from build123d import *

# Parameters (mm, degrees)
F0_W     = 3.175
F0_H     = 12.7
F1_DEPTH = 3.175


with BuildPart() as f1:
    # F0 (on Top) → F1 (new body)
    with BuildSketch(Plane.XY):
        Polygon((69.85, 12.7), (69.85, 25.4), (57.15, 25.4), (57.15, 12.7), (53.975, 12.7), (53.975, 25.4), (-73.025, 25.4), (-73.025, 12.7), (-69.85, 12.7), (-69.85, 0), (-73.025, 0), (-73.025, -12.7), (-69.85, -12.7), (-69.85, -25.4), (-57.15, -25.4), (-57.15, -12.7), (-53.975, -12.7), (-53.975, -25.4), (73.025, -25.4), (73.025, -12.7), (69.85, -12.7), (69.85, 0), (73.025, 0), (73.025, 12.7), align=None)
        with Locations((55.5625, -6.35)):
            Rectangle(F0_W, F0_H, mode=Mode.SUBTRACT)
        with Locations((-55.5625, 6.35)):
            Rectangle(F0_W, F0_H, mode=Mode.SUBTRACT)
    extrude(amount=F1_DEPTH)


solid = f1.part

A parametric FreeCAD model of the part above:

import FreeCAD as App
import Part
import Sketcher

V = App.Vector
Q = App.Units.Quantity

doc = App.newDocument("Part")
body = doc.addObject("PartDesign::Body", "Body")

# Sketch on XY plane
sketch1 = doc.addObject("Sketcher::SketchObject", "Sketch")
body.addObject(sketch1)
sketch1.AttachmentSupport = (doc.XY_Plane, [""])
sketch1.MapMode = "FlatFace"
sketch1.addGeometry([
    Part.LineSegment(V(69.8, 12.7, 0), V(69.8, 25.4, 0)),  # 0
    Part.LineSegment(V(69.8, 25.4, 0), V(57.1, 25.4, 0)),  # 1
    Part.LineSegment(V(57.1, 25.4, 0), V(57.1, 12.7, 0)),  # 2
    Part.LineSegment(V(57.1, 12.7, 0), V(54, 12.7, 0)),  # 3
    Part.LineSegment(V(54, 12.7, 0), V(54, 25.4, 0)),  # 4
    Part.LineSegment(V(54, 25.4, 0), V(-73, 25.4, 0)),  # 5
    Part.LineSegment(V(-73, 25.4, 0), V(-73, 12.7, 0)),  # 6
    Part.LineSegment(V(-73, 12.7, 0), V(-69.8, 12.7, 0)),  # 7
    Part.LineSegment(V(-69.8, 12.7, 0), V(-69.8, 0, 0)),  # 8
    Part.LineSegment(V(-69.8, 0, 0), V(-73, 0, 0)),  # 9
    Part.LineSegment(V(-73, 0, 0), V(-73, -12.7, 0)),  # 10
    Part.LineSegment(V(-73, -12.7, 0), V(-69.8, -12.7, 0)),  # 11
    Part.LineSegment(V(-69.8, -12.7, 0), V(-69.8, -25.4, 0)),  # 12
    Part.LineSegment(V(-69.8, -25.4, 0), V(-57.1, -25.4, 0)),  # 13
    Part.LineSegment(V(-57.1, -25.4, 0), V(-57.1, -12.7, 0)),  # 14
    Part.LineSegment(V(-57.1, -12.7, 0), V(-54, -12.7, 0)),  # 15
    Part.LineSegment(V(-54, -12.7, 0), V(-54, -25.4, 0)),  # 16
    Part.LineSegment(V(-54, -25.4, 0), V(73, -25.4, 0)),  # 17
    Part.LineSegment(V(73, -25.4, 0), V(73, -12.7, 0)),  # 18
    Part.LineSegment(V(73, -12.7, 0), V(69.8, -12.7, 0)),  # 19
    Part.LineSegment(V(69.8, -12.7, 0), V(69.8, 0, 0)),  # 20
    Part.LineSegment(V(69.8, 0, 0), V(73, 0, 0)),  # 21
    Part.LineSegment(V(73, 0, 0), V(73, 12.7, 0)),  # 22
    Part.LineSegment(V(73, 12.7, 0), V(69.8, 12.7, 0)),  # 23
    Part.LineSegment(V(57.1, -12.7, 0), V(54, -12.7, 0)),  # 24
    Part.LineSegment(V(54, -12.7, 0), V(54, 0, 0)),  # 25
    Part.LineSegment(V(54, 0, 0), V(57.1, 0, 0)),  # 26
    Part.LineSegment(V(57.1, 0, 0), V(57.1, -12.7, 0)),  # 27
    Part.LineSegment(V(-54, 0, 0), V(-57.1, 0, 0)),  # 28
    Part.LineSegment(V(-57.1, 0, 0), V(-57.1, 12.7, 0)),  # 29
    Part.LineSegment(V(-57.1, 12.7, 0), V(-54, 12.7, 0)),  # 30
    Part.LineSegment(V(-54, 12.7, 0), V(-54, 0, 0)),  # 31
], False)
sketch1.addConstraint([
    Sketcher.Constraint("Coincident", 0, 2, 1, 1),
    Sketcher.Constraint("Coincident", 1, 2, 2, 1),
    Sketcher.Constraint("Coincident", 2, 2, 3, 1),
    Sketcher.Constraint("Coincident", 3, 2, 4, 1),
    Sketcher.Constraint("Coincident", 4, 2, 5, 1),
    Sketcher.Constraint("Coincident", 5, 2, 6, 1),
    Sketcher.Constraint("Coincident", 6, 2, 7, 1),
    Sketcher.Constraint("Coincident", 7, 2, 8, 1),
    Sketcher.Constraint("Coincident", 8, 2, 9, 1),
    Sketcher.Constraint("Coincident", 9, 2, 10, 1),
    Sketcher.Constraint("Coincident", 10, 2, 11, 1),
    Sketcher.Constraint("Coincident", 11, 2, 12, 1),
    Sketcher.Constraint("Coincident", 12, 2, 13, 1),
    Sketcher.Constraint("Coincident", 13, 2, 14, 1),
    Sketcher.Constraint("Coincident", 14, 2, 15, 1),
    Sketcher.Constraint("Coincident", 15, 2, 16, 1),
    Sketcher.Constraint("Coincident", 16, 2, 17, 1),
    Sketcher.Constraint("Coincident", 17, 2, 18, 1),
    Sketcher.Constraint("Coincident", 18, 2, 19, 1),
    Sketcher.Constraint("Coincident", 19, 2, 20, 1),
    Sketcher.Constraint("Coincident", 20, 2, 21, 1),
    Sketcher.Constraint("Coincident", 21, 2, 22, 1),
    Sketcher.Constraint("Coincident", 22, 2, 23, 1),
    Sketcher.Constraint("Coincident", 23, 2, 0, 1),
    Sketcher.Constraint("Coincident", 24, 2, 25, 1),
    Sketcher.Constraint("Coincident", 25, 2, 26, 1),
    Sketcher.Constraint("Coincident", 26, 2, 27, 1),
    Sketcher.Constraint("Coincident", 27, 2, 24, 1),
    Sketcher.Constraint("Coincident", 28, 2, 29, 1),
    Sketcher.Constraint("Coincident", 29, 2, 30, 1),
    Sketcher.Constraint("Coincident", 30, 2, 31, 1),
    Sketcher.Constraint("Coincident", 31, 2, 28, 1),
    Sketcher.Constraint("Vertical", 0),
    Sketcher.Constraint("Horizontal", 1),
    Sketcher.Constraint("Vertical", 2),
    Sketcher.Constraint("Horizontal", 3),
    Sketcher.Constraint("Vertical", 4),
    Sketcher.Constraint("Horizontal", 5),
    Sketcher.Constraint("Vertical", 6),
    Sketcher.Constraint("Horizontal", 7),
    Sketcher.Constraint("Vertical", 8),
    Sketcher.Constraint("Horizontal", 9),
    Sketcher.Constraint("Vertical", 10),
    Sketcher.Constraint("Horizontal", 11),
    Sketcher.Constraint("Vertical", 12),
    Sketcher.Constraint("Horizontal", 13),
    Sketcher.Constraint("Vertical", 14),
    Sketcher.Constraint("Horizontal", 15),
    Sketcher.Constraint("Vertical", 16),
    Sketcher.Constraint("Horizontal", 17),
    Sketcher.Constraint("Vertical", 18),
    Sketcher.Constraint("Horizontal", 19),
    Sketcher.Constraint("Vertical", 20),
    Sketcher.Constraint("Horizontal", 21),
    Sketcher.Constraint("Vertical", 22),
    Sketcher.Constraint("Horizontal", 23),
    Sketcher.Constraint("Horizontal", 24),
    Sketcher.Constraint("Vertical", 25),
    Sketcher.Constraint("Horizontal", 26),
    Sketcher.Constraint("Vertical", 27),
    Sketcher.Constraint("Horizontal", 28),
    Sketcher.Constraint("Vertical", 29),
    Sketcher.Constraint("Horizontal", 30),
    Sketcher.Constraint("Vertical", 31),
    Sketcher.Constraint("Symmetric", 0, 2, 12, 2, -1, 1),
    Sketcher.Constraint("Symmetric", 2, 2, 14, 2, -1, 1),
    Sketcher.Constraint("Symmetric", 4, 2, 16, 2, -1, 1),
    Sketcher.Constraint("Symmetric", 6, 2, 18, 2, -1, 1),
    Sketcher.Constraint("Symmetric", 8, 2, 20, 2, -1, 1),
    Sketcher.Constraint("Symmetric", 10, 2, 22, 2, -1, 1),
    Sketcher.Constraint("Symmetric", 26, 2, 28, 2, -1, 1),
    Sketcher.Constraint("Symmetric", 24, 2, 30, 2, -1, 1),
    Sketcher.Constraint("Symmetric", 10, 2, 18, 2, -2),
    Sketcher.Constraint("Symmetric", 15, 2, 24, 2, -2),
    Sketcher.Constraint("PointOnObject", 8, 2, -1),
    Sketcher.Constraint("PointOnObject", 25, 2, -1),
    Sketcher.Constraint("Horizontal", 1, 2, 4, 2),
    Sketcher.Constraint("Horizontal", 3, 2, 6, 2),
    Sketcher.Constraint("Vertical", 8, 2, 11, 2),
    Sketcher.Constraint("Vertical", 2, 2, 26, 2),
    Sketcher.Constraint("Equal", 3, 7),
    Sketcher.Constraint("Equal", 13, 0),
    Sketcher.Constraint("Equal", 6, 8),
    Sketcher.Constraint("DistanceX", 5, 2, 5, 1, Q("5 in")),
    Sketcher.Constraint("DistanceX", 1, 2, 1, 1, Q("0.5 in")),
    Sketcher.Constraint("DistanceX", 3, 2, 3, 1, Q("0.125 in")),
])
pad1 = doc.addObject("PartDesign::Pad", "Pad")
body.addObject(pad1)
pad1.Profile = sketch1
pad1.Length = Q("0.125 in")

doc.recompute()
